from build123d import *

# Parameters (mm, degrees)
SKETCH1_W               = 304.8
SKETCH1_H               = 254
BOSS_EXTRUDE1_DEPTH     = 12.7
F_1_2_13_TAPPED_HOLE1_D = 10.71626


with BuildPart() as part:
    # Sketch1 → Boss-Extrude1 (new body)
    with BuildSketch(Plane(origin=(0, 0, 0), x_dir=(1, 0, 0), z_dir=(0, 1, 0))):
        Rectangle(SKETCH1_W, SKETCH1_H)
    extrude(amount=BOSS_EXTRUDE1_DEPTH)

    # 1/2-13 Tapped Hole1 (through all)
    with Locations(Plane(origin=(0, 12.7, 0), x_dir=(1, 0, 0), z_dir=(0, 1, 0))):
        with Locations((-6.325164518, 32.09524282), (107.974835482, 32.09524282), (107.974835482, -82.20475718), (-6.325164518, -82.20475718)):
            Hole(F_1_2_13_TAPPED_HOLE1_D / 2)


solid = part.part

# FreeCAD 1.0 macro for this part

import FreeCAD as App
import Part
import Sketcher

V = App.Vector
Q = App.Units.Quantity

doc = App.newDocument("Part")
body = doc.addObject("PartDesign::Body", "Body")

# Sketch on XZ plane
sketch1 = body.newObject("Sketcher::SketchObject", "Sketch")
sketch1.AttachmentSupport = (doc.getObject("XZ_Plane"), [""])
sketch1.MapMode = "FlatFace"
sketch1.addGeometry([
    Part.LineSegment(V(-152.4, -127, 0), V(-152.4, 127, 0)),
    Part.LineSegment(V(-152.4, 127, 0), V(152.4, 127, 0)),
    Part.LineSegment(V(152.4, 127, 0), V(152.4, -127, 0)),
    Part.LineSegment(V(152.4, -127, 0), V(-152.4, -127, 0)),
], False)
sketch1.addConstraint([
    Sketcher.Constraint("Coincident", 0, 2, 1, 1),
    Sketcher.Constraint("Coincident", 1, 2, 2, 1),
    Sketcher.Constraint("Coincident", 2, 2, 3, 1),
    Sketcher.Constraint("Coincident", 3, 2, 0, 1),
    Sketcher.Constraint("Vertical", 0),
    Sketcher.Constraint("Horizontal", 1),
    Sketcher.Constraint("Vertical", 2),
    Sketcher.Constraint("Horizontal", 3),
    Sketcher.Constraint("Symmetric", 0, 2, 2, 2, -1, 1),
    Sketcher.Constraint("DistanceX", 1, 1, 1, 2, Q("12 in")),
    Sketcher.Constraint("DistanceY", 0, 1, 0, 2, Q("10 in")),
])
pad1 = body.newObject("PartDesign::Pad", "Pad")
pad1.Profile = sketch1
pad1.Length = Q("0.5 in")
pad1.Reversed = True

# Sketch on XZ plane
sketch2 = body.newObject("Sketcher::SketchObject", "Sketch001")
sketch2.AttachmentSupport = (doc.getObject("XZ_Plane"), [""])
sketch2.MapMode = "FlatFace"
sketch2.AttachmentOffset = App.Placement(V(0, 0, -0.5 * 25.4), App.Rotation())
sketch2.addGeometry([
    Part.Circle(V(-6.325165, -32.095243, 0), V(0, 0, 1), 5.35813),
    Part.Circle(V(107.974835, -32.095243, 0), V(0, 0, 1), 5.35813),
    Part.Circle(V(107.974835, 82.204757, 0), V(0, 0, 1), 5.35813),
    Part.Circle(V(-6.325165, 82.204757, 0), V(0, 0, 1), 5.35813),
], False)
sketch2.addConstraint([
    Sketcher.Constraint("Equal", 0, 1),
    Sketcher.Constraint("Equal", 1, 2),
    Sketcher.Constraint("Equal", 2, 3),
    Sketcher.Constraint("Horizontal", 0, 3, 1, 3),
    Sketcher.Constraint("Horizontal", 2, 3, 3, 3),
    Sketcher.Constraint("Vertical", 1, 3, 2, 3),
    Sketcher.Constraint("Vertical", 0, 3, 3, 3),
    Sketcher.Constraint("Diameter", 0, Q("0.4219 in")),
    Sketcher.Constraint("DistanceX", 0, 3, 1, 3, Q("4.5 in")),
    Sketcher.Constraint("DistanceY", 1, 3, 2, 3, Q("4.5 in")),
    Sketcher.Constraint("DistanceX", 0, 3, -1, 1, Q("6.325165 mm")),
    Sketcher.Constraint("DistanceY", 0, 3, -1, 1, Q("32.095243 mm")),
])
doc.recompute()
hole = body.newObject("PartDesign::Hole", "Hole")
hole.Profile = sketch2
hole.ThreadType = "None"
hole.Diameter = Q("0.4219 in")
hole.DepthType = "ThroughAll"
hole.Reversed = True

doc.recompute()
